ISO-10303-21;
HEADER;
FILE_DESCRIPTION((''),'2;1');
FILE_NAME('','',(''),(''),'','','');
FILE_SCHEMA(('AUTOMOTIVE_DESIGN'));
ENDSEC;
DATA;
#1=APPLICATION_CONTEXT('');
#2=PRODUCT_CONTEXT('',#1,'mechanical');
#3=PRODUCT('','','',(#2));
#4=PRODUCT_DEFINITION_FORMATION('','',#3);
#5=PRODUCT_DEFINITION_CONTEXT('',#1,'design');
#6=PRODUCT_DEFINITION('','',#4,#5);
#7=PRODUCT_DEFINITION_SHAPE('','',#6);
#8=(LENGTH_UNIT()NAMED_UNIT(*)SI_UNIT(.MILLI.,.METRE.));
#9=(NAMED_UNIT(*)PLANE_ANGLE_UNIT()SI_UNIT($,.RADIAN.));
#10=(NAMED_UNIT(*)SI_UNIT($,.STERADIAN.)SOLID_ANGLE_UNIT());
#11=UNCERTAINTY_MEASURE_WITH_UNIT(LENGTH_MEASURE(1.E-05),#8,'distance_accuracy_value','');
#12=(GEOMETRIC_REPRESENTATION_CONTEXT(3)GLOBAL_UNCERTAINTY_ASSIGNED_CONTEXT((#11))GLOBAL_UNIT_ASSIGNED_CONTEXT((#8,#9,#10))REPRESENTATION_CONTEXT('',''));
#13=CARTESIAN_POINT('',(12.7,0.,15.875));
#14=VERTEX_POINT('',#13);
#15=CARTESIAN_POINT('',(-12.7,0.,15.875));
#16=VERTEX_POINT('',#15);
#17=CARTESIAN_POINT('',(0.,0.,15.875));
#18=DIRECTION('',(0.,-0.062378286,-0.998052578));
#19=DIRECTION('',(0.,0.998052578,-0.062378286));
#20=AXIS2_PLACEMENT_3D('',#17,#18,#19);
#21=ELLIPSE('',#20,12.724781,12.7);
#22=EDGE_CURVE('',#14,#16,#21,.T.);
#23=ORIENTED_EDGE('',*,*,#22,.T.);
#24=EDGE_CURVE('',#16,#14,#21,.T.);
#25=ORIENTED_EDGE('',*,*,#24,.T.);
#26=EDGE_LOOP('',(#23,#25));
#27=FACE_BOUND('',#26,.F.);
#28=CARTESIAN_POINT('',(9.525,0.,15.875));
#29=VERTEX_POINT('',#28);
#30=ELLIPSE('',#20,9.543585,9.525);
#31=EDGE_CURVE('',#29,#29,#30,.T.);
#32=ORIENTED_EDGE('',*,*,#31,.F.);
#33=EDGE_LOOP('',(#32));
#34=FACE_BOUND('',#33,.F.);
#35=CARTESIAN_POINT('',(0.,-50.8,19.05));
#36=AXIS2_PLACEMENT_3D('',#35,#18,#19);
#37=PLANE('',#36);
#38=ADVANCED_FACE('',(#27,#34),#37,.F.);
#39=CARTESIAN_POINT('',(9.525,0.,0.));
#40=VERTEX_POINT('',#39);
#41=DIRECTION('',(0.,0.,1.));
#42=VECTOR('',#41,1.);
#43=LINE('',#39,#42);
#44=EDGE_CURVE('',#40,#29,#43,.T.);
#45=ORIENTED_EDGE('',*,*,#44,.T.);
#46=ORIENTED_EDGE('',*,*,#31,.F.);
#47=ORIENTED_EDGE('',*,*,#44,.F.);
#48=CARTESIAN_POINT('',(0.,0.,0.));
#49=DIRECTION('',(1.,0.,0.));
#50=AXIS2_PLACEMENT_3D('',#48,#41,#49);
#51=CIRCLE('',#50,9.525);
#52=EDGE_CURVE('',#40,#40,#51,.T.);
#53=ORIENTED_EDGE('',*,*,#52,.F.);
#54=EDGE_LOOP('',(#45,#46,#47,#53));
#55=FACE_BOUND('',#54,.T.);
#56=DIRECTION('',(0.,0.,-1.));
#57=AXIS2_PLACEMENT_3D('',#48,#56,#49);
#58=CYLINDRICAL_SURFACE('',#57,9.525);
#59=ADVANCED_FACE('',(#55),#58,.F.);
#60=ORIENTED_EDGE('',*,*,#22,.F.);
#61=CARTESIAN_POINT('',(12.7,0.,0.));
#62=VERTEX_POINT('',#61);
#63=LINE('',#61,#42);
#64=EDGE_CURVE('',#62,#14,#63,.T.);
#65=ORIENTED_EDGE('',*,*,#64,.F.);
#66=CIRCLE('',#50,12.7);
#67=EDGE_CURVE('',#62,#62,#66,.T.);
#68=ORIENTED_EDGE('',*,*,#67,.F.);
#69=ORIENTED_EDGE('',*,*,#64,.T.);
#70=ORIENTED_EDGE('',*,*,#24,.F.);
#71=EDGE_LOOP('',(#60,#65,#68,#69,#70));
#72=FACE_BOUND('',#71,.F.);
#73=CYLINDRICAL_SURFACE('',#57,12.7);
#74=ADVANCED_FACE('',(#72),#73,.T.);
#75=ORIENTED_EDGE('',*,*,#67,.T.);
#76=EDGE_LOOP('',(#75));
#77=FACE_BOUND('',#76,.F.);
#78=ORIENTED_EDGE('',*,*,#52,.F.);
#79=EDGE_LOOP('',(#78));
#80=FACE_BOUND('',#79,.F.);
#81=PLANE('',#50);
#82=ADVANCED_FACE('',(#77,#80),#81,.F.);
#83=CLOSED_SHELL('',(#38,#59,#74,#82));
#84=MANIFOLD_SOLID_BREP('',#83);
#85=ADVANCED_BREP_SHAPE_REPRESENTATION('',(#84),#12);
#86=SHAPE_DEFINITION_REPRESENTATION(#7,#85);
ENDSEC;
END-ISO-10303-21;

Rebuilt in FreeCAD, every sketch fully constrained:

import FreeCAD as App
import Part
import Sketcher
Q = App.Units.Quantity


def add_polygon(sketch, points):
    """Adds a closed chain of lines whose ends are joined by coincident constraints."""
    first, n = sketch.GeometryCount, len(points)
    for a, b in zip(points, points[1:] + points[:1]):
        sketch.addGeometry(Part.LineSegment(App.Vector(*a, 0), App.Vector(*b, 0)), False)
    for i in range(n):
        sketch.addConstraint(Sketcher.Constraint("Coincident", first + i, 2, first + (i + 1) % n, 1))

doc = App.newDocument("Part")
body = doc.addObject("PartDesign::Body", "Body")

# Sketch on XY plane
sketch1 = body.newObject("Sketcher::SketchObject", "Sketch")
sketch1.AttachmentSupport = (doc.getObject("XY_Plane"), [""])
sketch1.MapMode = "FlatFace"
sketch1.addGeometry([
    Part.Circle(App.Vector(0, 0, 0), App.Vector(0, 0, 1), 13),
    Part.Circle(App.Vector(0, 0, 0), App.Vector(0, 0, 1), 10),
], False)
sketch1.addConstraint([
    Sketcher.Constraint("Coincident", 0, 3, -1, 1),
    Sketcher.Constraint("Coincident", 1, 3, -1, 1),
    Sketcher.Constraint("Diameter", 0, Q("1 in")),
    Sketcher.Constraint("Diameter", 1, Q("0.75 in")),
])
pad1 = body.newObject("PartDesign::Pad", "Pad")
pad1.Profile = sketch1
pad1.Length = Q("2 in")

# Sketch on YZ plane
sketch2 = body.newObject("Sketcher::SketchObject", "Sketch001")
sketch2.AttachmentSupport = (doc.getObject("YZ_Plane"), [""])
sketch2.MapMode = "FlatFace"
add_polygon(sketch2, [(-51, 59), (-51, 19), (51, 13), (51, 59)])  # lines 0-3
sketch2.addConstraint([
    Sketcher.Constraint("Vertical", 0),
    Sketcher.Constraint("Vertical", 2),
    Sketcher.Constraint("Horizontal", 3),
    Sketcher.Constraint("DistanceX", 3, 2, 3, 1, Q("4 in")),
    Sketcher.Constraint("DistanceX", 0, 2, -1, 1, Q("2 in")),
    Sketcher.Constraint("DistanceY", -1, 1, 1, 2, Q("0.5 in")),
    Sketcher.Constraint("DistanceY", 0, 2, 0, 1, Q("1.5849999 in")),
    Sketcher.Constraint("DistanceY", 2, 1, 2, 2, Q("1.8349999 in")),
])
pocket1 = body.newObject("PartDesign::Pocket", "Pocket")
pocket1.Profile = sketch2
pocket1.Length = Q("1 in")
pocket1.Midplane = True

doc.recompute()
